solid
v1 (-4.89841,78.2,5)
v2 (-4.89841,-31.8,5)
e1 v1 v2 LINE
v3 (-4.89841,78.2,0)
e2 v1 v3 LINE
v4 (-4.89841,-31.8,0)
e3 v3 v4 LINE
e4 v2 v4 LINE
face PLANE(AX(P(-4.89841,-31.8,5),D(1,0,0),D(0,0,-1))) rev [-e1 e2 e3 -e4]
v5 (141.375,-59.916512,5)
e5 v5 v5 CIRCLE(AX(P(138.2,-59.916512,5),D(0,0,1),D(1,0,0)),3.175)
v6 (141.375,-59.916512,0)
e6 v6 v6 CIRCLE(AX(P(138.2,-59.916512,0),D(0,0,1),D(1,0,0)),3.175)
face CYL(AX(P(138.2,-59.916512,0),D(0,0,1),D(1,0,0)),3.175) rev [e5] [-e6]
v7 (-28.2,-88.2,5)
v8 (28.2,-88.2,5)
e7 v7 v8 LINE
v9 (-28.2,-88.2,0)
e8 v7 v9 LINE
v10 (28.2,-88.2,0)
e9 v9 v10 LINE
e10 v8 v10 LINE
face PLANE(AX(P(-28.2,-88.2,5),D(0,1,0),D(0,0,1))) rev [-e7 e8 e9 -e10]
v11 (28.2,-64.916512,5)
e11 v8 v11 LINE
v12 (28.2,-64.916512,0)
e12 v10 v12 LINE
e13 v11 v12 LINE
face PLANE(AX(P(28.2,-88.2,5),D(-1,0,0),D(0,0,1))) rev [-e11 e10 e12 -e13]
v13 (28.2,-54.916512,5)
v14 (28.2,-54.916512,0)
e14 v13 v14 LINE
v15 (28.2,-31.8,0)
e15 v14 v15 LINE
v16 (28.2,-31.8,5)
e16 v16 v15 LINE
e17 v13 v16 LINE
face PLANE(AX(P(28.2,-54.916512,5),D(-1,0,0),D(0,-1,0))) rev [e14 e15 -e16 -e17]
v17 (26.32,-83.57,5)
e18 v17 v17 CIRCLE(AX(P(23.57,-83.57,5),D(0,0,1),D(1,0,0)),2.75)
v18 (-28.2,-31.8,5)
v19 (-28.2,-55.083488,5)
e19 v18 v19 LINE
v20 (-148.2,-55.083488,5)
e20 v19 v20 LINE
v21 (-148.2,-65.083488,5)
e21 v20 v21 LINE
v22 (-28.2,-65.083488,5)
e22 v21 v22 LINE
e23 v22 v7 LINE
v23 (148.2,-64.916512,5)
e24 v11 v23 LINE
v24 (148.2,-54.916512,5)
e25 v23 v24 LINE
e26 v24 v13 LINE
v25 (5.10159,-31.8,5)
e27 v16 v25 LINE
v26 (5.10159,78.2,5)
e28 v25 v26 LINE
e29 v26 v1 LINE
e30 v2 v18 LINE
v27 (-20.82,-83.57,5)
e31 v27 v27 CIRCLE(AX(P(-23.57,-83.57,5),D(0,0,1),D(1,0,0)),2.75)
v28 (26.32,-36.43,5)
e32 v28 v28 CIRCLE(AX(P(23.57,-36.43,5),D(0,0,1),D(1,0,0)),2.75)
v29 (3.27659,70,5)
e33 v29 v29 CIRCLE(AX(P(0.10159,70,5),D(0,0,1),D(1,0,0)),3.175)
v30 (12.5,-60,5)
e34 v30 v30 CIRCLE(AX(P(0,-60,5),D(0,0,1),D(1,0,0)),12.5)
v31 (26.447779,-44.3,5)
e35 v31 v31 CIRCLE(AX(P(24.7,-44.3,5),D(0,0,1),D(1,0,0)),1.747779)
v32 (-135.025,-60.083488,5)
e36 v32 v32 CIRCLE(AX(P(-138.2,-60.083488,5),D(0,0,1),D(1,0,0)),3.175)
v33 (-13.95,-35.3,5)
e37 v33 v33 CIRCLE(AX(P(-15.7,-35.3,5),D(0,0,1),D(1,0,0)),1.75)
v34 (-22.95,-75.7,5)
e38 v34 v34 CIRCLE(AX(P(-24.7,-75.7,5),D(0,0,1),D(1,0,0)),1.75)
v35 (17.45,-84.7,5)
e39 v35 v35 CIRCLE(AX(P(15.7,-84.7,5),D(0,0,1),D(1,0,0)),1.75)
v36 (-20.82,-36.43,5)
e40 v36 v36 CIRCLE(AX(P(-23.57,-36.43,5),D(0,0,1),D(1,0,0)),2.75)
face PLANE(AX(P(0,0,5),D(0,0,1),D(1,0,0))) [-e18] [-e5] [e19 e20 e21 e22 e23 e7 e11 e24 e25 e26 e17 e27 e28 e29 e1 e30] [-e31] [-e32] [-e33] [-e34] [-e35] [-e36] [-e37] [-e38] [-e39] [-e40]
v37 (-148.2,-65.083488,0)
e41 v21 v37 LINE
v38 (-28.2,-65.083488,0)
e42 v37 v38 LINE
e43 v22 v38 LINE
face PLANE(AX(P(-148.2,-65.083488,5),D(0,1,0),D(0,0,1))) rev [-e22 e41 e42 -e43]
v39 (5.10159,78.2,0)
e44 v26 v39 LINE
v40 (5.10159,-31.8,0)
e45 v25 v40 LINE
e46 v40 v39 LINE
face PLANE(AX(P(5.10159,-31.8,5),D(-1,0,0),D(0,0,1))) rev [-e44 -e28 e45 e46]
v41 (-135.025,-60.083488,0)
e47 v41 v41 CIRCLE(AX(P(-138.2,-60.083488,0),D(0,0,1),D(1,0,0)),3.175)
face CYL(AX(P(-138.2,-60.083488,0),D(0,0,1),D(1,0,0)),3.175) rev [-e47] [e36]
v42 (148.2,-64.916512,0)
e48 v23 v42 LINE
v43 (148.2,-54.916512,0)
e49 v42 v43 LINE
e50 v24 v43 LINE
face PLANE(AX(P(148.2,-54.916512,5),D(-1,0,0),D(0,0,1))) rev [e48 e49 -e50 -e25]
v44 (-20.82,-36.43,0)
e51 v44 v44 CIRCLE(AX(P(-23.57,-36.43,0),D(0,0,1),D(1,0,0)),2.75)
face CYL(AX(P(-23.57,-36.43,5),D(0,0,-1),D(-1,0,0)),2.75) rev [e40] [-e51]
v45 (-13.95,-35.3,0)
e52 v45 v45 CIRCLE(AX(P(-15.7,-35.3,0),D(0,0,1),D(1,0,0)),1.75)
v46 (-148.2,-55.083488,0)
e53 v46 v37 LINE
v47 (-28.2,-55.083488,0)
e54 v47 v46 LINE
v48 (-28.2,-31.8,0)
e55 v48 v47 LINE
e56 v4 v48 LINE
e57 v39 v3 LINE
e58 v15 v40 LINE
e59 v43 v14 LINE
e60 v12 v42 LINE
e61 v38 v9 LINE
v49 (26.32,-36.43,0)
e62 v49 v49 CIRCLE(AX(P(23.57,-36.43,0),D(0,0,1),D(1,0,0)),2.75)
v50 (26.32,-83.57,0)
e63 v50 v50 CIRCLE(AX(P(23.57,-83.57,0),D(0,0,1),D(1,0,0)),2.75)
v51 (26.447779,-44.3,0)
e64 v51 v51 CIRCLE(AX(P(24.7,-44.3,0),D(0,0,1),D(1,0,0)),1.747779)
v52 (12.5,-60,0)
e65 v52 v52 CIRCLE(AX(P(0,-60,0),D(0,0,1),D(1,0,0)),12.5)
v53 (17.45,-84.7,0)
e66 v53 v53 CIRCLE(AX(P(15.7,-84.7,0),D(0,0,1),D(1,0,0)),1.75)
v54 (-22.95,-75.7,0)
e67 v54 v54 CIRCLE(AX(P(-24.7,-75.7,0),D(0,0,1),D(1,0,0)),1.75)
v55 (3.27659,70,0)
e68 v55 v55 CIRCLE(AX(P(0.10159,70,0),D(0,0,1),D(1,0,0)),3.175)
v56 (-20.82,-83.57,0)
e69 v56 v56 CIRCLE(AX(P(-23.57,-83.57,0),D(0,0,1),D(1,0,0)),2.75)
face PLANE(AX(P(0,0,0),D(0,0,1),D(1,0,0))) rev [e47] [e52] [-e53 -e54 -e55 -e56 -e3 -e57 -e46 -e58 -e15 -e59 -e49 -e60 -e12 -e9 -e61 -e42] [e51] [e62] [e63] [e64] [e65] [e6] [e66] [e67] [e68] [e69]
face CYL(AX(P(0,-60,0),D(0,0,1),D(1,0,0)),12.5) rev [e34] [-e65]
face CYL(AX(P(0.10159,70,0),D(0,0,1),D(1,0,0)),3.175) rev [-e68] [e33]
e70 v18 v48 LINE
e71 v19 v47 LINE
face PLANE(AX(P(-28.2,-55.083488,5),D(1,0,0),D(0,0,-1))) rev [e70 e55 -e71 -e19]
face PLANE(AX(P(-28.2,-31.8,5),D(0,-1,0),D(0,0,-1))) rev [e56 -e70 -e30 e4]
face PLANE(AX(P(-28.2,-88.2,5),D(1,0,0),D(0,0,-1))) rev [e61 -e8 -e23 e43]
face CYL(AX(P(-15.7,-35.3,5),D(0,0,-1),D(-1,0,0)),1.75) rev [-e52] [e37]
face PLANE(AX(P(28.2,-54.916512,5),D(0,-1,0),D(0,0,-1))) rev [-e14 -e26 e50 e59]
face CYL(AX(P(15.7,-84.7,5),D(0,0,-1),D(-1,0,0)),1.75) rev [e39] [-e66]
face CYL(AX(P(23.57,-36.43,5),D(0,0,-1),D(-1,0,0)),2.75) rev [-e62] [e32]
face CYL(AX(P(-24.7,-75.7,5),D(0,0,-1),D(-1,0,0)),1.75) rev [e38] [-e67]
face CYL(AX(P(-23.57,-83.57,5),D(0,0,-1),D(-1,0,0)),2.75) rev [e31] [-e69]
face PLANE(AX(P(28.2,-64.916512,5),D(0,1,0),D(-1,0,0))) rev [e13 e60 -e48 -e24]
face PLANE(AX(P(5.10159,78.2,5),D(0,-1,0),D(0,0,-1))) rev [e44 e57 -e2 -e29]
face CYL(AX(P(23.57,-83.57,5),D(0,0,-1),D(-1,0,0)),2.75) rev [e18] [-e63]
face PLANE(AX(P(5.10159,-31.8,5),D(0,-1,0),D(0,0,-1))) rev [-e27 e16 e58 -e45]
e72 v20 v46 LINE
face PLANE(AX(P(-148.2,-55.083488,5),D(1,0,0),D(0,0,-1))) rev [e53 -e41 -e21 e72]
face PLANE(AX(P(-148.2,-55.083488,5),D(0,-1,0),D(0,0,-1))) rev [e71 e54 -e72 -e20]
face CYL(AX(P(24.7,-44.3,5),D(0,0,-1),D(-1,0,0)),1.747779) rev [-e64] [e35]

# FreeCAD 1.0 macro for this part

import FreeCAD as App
import Part
import Sketcher


def add_polygon(sketch, points):
    """Adds a closed chain of lines whose ends are joined by coincident constraints."""
    first, n = sketch.GeometryCount, len(points)
    for a, b in zip(points, points[1:] + points[:1]):
        sketch.addGeometry(Part.LineSegment(App.Vector(*a, 0), App.Vector(*b, 0)), False)
    for i in range(n):
        sketch.addConstraint(Sketcher.Constraint("Coincident", first + i, 2, first + (i + 1) % n, 1))

doc = App.newDocument("Part")
body = doc.addObject("PartDesign::Body", "Body")

# Sketch on XY plane
sketch1 = body.newObject("Sketcher::SketchObject", "Sketch")
sketch1.AttachmentSupport = (doc.getObject("XY_Plane"), [""])
sketch1.MapMode = "FlatFace"
add_polygon(sketch1, [(-28.2, -31.8), (-28.2, -55.083488), (-148.2, -55.083488), (-148.2, -65.083488), (-28.2, -65.083488), (-28.2, -88.2), (28.2, -88.2), (28.2, -64.916512), (148.2, -64.916512), (148.2, -54.916512), (28.2, -54.916512), (28.2, -31.8), (5.10159, -31.8), (5.10159, 78.2), (-4.89841, 78.2), (-4.89841, -31.8)])  # lines 0-15
sketch1.addGeometry(Part.Circle(App.Vector(23.57, -83.57, 0), App.Vector(0, 0, 1), 2.75), False)  # 16
sketch1.addGeometry(Part.Circle(App.Vector(15.7, -84.7, 0), App.Vector(0, 0, 1), 1.75), False)  # 17
sketch1.addGeometry(Part.Circle(App.Vector(0, -60, 0), App.Vector(0, 0, 1), 7.725413), False)  # 18
sketch1.addGeometry(Part.Circle(App.Vector(-23.57, -83.57, 0), App.Vector(0, 0, 1), 2.75), False)  # 19
sketch1.addGeometry(Part.Circle(App.Vector(-24.7, -75.7, 0), App.Vector(0, 0, 1), 1.75), False)  # 20
sketch1.addGeometry(Part.Circle(App.Vector(24.7, -44.3, 0), App.Vector(0, 0, 1), 1.747779), False)  # 21
sketch1.addGeometry(Part.Circle(App.Vector(23.57, -36.43, 0), App.Vector(0, 0, 1), 2.75), False)  # 22
sketch1.addGeometry(Part.Circle(App.Vector(-15.7, -35.3, 0), App.Vector(0, 0, 1), 1.75), False)  # 23
sketch1.addGeometry(Part.Circle(App.Vector(-23.57, -36.43, 0), App.Vector(0, 0, 1), 2.75), False)  # 24
sketch1.addConstraint([
    Sketcher.Constraint("Vertical", 0),
    Sketcher.Constraint("Horizontal", 1),
    Sketcher.Constraint("Vertical", 2),
    Sketcher.Constraint("Horizontal", 3),
    Sketcher.Constraint("Vertical", 4),
    Sketcher.Constraint("Horizontal", 5),
    Sketcher.Constraint("Vertical", 6),
    Sketcher.Constraint("Horizontal", 7),
    Sketcher.Constraint("Vertical", 8),
    Sketcher.Constraint("Horizontal", 9),
    Sketcher.Constraint("Vertical", 10),
    Sketcher.Constraint("Horizontal", 11),
    Sketcher.Constraint("Vertical", 12),
    Sketcher.Constraint("Horizontal", 13),
    Sketcher.Constraint("Vertical", 14),
    Sketcher.Constraint("Horizontal", 15),
    Sketcher.Constraint("Equal", 16, 19),
    Sketcher.Constraint("Equal", 17, 20),
    Sketcher.Constraint("Equal", 19, 22),
    Sketcher.Constraint("Equal", 20, 23),
    Sketcher.Constraint("Equal", 22, 24),
    Sketcher.Constraint("Symmetric", 16, 3, 19, 3, -2),
    Sketcher.Constraint("Symmetric", 22, 3, 24, 3, -2),
    Sketcher.Constraint("Symmetric", 10, 2, 15, 2, -2),
    Sketcher.Constraint("PointOnObject", 18, 3, -2),
    Sketcher.Constraint("Vertical", 16, 3, 22, 3),
    Sketcher.Constraint("Vertical", 0, 2, 3, 2),
    Sketcher.Constraint("Vertical", 6, 2, 9, 2),
    Sketcher.Constraint("Equal", 3, 7),
    Sketcher.Constraint("Equal", 13, 2),
    Sketcher.Constraint("Equal", 0, 6),
    Sketcher.Constraint("Equal", 2, 8),
    Sketcher.Constraint("Diameter", 16, 5.5),
    Sketcher.Constraint("Diameter", 17, 3.5),
    Sketcher.Constraint("DistanceX", 1, 2, 1, 1, 120.0),
    Sketcher.Constraint("DistanceX", 13, 2, 13, 1, 10.0),
    Sketcher.Constraint("DistanceY", 12, 1, 12, 2, 110.0),
    Sketcher.Constraint("DistanceX", 5, 1, 5, 2, 56.4),
    Sketcher.Constraint("DistanceY", 18, 3, -1, 1, 60.0),
    Sketcher.Constraint("DistanceY", 17, 3, 20, 3, 9.0),
    Sketcher.Constraint("DistanceX", 17, 3, 21, 3, 9.0),
    Sketcher.Constraint("DistanceY", 21, 3, 23, 3, 9.0),
    Sketcher.Constraint("DistanceX", 20, 3, 23, 3, 9.0),
    Sketcher.Constraint("DistanceX", -1, 1, 17, 3, 15.7),
    Sketcher.Constraint("DistanceY", 17, 3, -1, 1, 84.7),
    Sketcher.Constraint("DistanceX", 20, 3, -1, 1, 24.7),
    Sketcher.Constraint("DistanceY", 21, 3, -1, 1, 44.3),
    Sketcher.Constraint("DistanceY", 4, 2, -1, 1, 88.2),
    Sketcher.Constraint("DistanceY", 10, 2, -1, 1, 31.8),
    Sketcher.Constraint("DistanceX", -1, 1, 16, 3, 23.57),
    Sketcher.Constraint("DistanceY", 16, 3, -1, 1, 83.57),
    Sketcher.Constraint("DistanceY", 22, 3, -1, 1, 36.43),
    Sketcher.Constraint("Diameter", 18, 15.450826),
    Sketcher.Constraint("Diameter", 21, 3.495557),
    Sketcher.Constraint("DistanceX", 11, 2, 11, 1, 23.09841),
    Sketcher.Constraint("DistanceY", 0, 2, 0, 1, 23.283488),
])
pad1 = body.newObject("PartDesign::Pad", "Pad")
pad1.Profile = sketch1
pad1.Length = 5

# Sketch on XY plane
sketch2 = body.newObject("Sketcher::SketchObject", "Sketch001")
sketch2.AttachmentSupport = (doc.getObject("XY_Plane"), [""])
sketch2.MapMode = "FlatFace"
sketch2.AttachmentOffset = App.Placement(App.Vector(0, 0, 5), App.Rotation())
sketch2.addGeometry([
    Part.Circle(App.Vector(0.10159, 70, 0), App.Vector(0, 0, 1), 3.175),
    Part.Circle(App.Vector(138.2, -59.916512, 0), App.Vector(0, 0, 1), 3.175),
    Part.Circle(App.Vector(-138.2, -60.083488, 0), App.Vector(0, 0, 1), 3.175),
    Part.Circle(App.Vector(0, -60, 0), App.Vector(0, 0, 1), 12.5),
], False)
sketch2.addConstraint([
    Sketcher.Constraint("Equal", 0, 1),
    Sketcher.Constraint("Equal", 1, 2),
    Sketcher.Constraint("PointOnObject", 3, 3, -2),
    Sketcher.Constraint("Diameter", 3, 25.0),
    Sketcher.Constraint("Diameter", 0, 6.35),
    Sketcher.Constraint("DistanceY", -1, 1, 0, 3, 70.0),
    Sketcher.Constraint("DistanceY", 3, 3, -1, 1, 60.0),
    Sketcher.Constraint("DistanceX", -1, 1, 1, 3, 138.2),
    Sketcher.Constraint("DistanceX", 2, 3, -1, 1, 138.2),
    Sketcher.Constraint("DistanceX", -1, 1, 0, 3, 0.10159),
    Sketcher.Constraint("DistanceY", 1, 3, -1, 1, 59.916512),
    Sketcher.Constraint("DistanceY", 2, 3, -1, 1, 60.083488),
])
pocket1 = body.newObject("PartDesign::Pocket", "Pocket")
pocket1.Profile = sketch2
pocket1.Length = 5

doc.recompute()
